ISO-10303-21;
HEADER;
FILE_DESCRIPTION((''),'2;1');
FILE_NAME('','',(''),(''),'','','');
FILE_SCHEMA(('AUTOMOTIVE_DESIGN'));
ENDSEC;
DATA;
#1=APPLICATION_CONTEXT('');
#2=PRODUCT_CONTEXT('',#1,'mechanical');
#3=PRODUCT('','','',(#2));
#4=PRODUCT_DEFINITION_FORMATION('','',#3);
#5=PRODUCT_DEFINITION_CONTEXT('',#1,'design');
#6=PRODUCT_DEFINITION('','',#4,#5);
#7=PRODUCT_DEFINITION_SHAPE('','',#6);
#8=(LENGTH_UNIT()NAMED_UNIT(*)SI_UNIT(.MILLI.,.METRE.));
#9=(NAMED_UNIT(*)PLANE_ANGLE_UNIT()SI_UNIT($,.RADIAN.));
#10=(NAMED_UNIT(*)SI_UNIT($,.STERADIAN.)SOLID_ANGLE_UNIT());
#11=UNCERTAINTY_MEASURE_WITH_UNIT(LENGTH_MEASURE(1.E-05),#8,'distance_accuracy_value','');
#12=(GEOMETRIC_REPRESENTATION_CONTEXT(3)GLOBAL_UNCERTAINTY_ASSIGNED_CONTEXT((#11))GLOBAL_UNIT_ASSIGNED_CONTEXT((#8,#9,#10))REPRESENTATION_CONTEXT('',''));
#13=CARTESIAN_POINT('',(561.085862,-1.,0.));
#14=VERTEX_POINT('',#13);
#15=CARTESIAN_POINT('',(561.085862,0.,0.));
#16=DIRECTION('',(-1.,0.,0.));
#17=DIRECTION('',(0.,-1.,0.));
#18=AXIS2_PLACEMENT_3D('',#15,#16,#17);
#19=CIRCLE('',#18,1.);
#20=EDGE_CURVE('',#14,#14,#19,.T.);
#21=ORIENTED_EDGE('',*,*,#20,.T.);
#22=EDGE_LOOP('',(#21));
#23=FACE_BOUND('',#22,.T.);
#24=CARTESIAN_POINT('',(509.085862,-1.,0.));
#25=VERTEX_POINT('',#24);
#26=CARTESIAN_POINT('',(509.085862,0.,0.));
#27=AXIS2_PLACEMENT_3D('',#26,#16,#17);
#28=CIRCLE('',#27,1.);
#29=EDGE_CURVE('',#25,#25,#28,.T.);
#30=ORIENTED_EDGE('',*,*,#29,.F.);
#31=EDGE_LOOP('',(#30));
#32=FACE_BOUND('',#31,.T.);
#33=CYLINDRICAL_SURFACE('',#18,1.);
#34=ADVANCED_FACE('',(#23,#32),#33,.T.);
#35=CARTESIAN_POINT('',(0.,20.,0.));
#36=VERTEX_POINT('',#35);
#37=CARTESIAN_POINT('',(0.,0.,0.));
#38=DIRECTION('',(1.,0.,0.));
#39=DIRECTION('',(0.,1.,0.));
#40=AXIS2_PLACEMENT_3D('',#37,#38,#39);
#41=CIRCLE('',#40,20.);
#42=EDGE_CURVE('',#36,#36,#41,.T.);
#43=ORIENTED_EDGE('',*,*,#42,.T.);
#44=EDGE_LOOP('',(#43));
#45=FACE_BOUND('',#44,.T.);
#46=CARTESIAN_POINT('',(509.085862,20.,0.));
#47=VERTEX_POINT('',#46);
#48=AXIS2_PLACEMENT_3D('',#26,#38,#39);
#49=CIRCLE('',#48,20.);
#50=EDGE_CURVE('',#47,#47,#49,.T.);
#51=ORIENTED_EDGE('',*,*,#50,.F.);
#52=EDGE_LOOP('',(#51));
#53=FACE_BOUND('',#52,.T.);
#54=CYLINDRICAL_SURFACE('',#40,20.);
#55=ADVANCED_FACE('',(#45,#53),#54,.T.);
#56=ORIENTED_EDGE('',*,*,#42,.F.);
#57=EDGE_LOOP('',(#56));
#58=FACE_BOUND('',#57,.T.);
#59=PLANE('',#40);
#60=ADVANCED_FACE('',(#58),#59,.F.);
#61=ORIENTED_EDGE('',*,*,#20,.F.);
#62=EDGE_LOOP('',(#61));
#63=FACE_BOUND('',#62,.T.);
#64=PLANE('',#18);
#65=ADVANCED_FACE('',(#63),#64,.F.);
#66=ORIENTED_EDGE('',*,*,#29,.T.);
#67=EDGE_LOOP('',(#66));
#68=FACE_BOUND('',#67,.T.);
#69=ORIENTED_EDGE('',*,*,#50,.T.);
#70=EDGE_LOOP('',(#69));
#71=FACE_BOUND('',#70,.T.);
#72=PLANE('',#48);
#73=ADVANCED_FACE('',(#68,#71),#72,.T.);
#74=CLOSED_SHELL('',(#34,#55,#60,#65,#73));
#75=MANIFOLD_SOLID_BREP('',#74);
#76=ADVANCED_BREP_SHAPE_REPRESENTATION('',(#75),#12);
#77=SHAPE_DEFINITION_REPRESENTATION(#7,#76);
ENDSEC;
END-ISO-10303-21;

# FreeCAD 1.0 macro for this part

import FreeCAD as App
import Part
import Sketcher

V = App.Vector
Q = App.Units.Quantity

doc = App.newDocument("Part")
body = doc.addObject("PartDesign::Body", "Body")

sketch1 = body.newObject("Sketcher::SketchObject", "Sketch")
sketch1.AttachmentSupport = (doc.getObject("YZ_Plane"), [""])
sketch1.MapMode = "FlatFace"
sketch1.addGeometry(Part.Circle(V(0, 0, 0), V(0, 0, 1), 20), False)
sketch1.addConstraint([
    Sketcher.Constraint("Coincident", 0, 3, -1, 1),
    Sketcher.Constraint("Diameter", 0, Q("40 mm")),
])

sketch2 = body.newObject("Sketcher::SketchObject", "Sketch001")
sketch2.AttachmentSupport = (doc.getObject("XY_Plane"), [""])
sketch2.MapMode = "FlatFace"
sketch2.addGeometry(Part.LineSegment(V(0, 0, 0), V(509.085862, 0, 0)), False)
sketch2.addConstraint([
    Sketcher.Constraint("Horizontal", 0),
    Sketcher.Constraint("Coincident", 0, 1, -1, 1),
    Sketcher.Constraint("DistanceX", 0, 1, 0, 2, Q("509.085862 mm")),
])
doc.recompute()

additivepipe = body.newObject("PartDesign::AdditivePipe", "AdditivePipe")
additivepipe.Profile = sketch1
additivepipe.Spine = (sketch2, ["Edge1"])

sketch3 = body.newObject("Sketcher::SketchObject", "Sketch002")
sketch3.AttachmentSupport = (doc.getObject("YZ_Plane"), [""])
sketch3.MapMode = "FlatFace"
sketch3.AttachmentOffset = App.Placement(V(0, 0, 561.085862), App.Rotation())
sketch3.addGeometry(Part.Circle(V(0, 0, 0), V(0, 0, 1), 1), False)
sketch3.addConstraint([
    Sketcher.Constraint("Coincident", 0, 3, -1, 1),
    Sketcher.Constraint("Diameter", 0, Q("2 mm")),
])

sketch4 = body.newObject("Sketcher::SketchObject", "Sketch003")
sketch4.AttachmentSupport = (doc.getObject("XY_Plane"), [""])
sketch4.MapMode = "FlatFace"
sketch4.addGeometry(Part.LineSegment(V(561.085862, 0, 0), V(509.085862, 0, 0)), False)
sketch4.addConstraint([
    Sketcher.Constraint("Horizontal", 0),
    Sketcher.Constraint("PointOnObject", 0, 1, -1),
    Sketcher.Constraint("DistanceX", 0, 2, 0, 1, Q("52 mm")),
    Sketcher.Constraint("DistanceX", -1, 1, 0, 1, Q("561.085862 mm")),
])
doc.recompute()

additivepipe2 = body.newObject("PartDesign::AdditivePipe", "AdditivePipe001")
additivepipe2.Profile = sketch3
additivepipe2.Spine = (sketch4, ["Edge1"])

doc.recompute()
